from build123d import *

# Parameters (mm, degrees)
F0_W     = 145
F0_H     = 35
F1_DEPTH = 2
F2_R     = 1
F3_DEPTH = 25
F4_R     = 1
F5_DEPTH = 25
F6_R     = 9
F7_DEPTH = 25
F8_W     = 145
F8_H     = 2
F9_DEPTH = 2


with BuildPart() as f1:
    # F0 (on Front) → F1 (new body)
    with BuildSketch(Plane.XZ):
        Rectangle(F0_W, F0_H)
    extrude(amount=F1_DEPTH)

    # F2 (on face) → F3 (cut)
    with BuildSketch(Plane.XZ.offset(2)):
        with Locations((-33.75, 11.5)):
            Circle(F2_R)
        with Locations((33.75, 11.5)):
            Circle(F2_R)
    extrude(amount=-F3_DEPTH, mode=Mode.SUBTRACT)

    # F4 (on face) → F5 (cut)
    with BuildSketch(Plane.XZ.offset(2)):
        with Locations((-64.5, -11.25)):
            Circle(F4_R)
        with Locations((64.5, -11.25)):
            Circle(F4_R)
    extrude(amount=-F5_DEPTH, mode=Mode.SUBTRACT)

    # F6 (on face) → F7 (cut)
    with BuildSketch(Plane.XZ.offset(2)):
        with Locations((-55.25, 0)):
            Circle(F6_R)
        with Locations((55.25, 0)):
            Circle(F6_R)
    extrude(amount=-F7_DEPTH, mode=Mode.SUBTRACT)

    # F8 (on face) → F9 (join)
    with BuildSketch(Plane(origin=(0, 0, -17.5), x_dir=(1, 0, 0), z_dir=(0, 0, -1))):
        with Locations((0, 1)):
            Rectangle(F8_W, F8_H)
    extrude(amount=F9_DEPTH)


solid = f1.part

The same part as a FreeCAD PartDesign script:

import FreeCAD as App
import Part
import Sketcher

V = App.Vector
Q = App.Units.Quantity

doc = App.newDocument("Part")
body = doc.addObject("PartDesign::Body", "Body")

# Sketch on XZ plane
sketch1 = doc.addObject("Sketcher::SketchObject", "Sketch")
body.addObject(sketch1)
sketch1.AttachmentSupport = (doc.XZ_Plane, [""])
sketch1.MapMode = "FlatFace"
sketch1.addGeometry(Part.LineSegment(V(-72, 18, 0), V(-72, -18, 0)), False)
sketch1.addGeometry(Part.LineSegment(V(-72, -18, 0), V(72, -18, 0)), False)
sketch1.addGeometry(Part.LineSegment(V(72, -18, 0), V(72, 18, 0)), False)
sketch1.addGeometry(Part.LineSegment(V(72, 18, 0), V(-72, 18, 0)), False)
sketch1.addConstraint(Sketcher.Constraint("Coincident", 0, 2, 1, 1))
sketch1.addConstraint(Sketcher.Constraint("Coincident", 1, 2, 2, 1))
sketch1.addConstraint(Sketcher.Constraint("Coincident", 2, 2, 3, 1))
sketch1.addConstraint(Sketcher.Constraint("Coincident", 3, 2, 0, 1))
sketch1.addConstraint(Sketcher.Constraint("Vertical", 0))
sketch1.addConstraint(Sketcher.Constraint("Horizontal", 1))
sketch1.addConstraint(Sketcher.Constraint("Vertical", 2))
sketch1.addConstraint(Sketcher.Constraint("Horizontal", 3))
sketch1.addConstraint(Sketcher.Constraint("Symmetric", 0, 2, 2, 2, -1, 1))
sketch1.addConstraint(Sketcher.Constraint("DistanceX", 1, 1, 1, 2, Q("145 mm")))
sketch1.addConstraint(Sketcher.Constraint("DistanceY", 0, 2, 0, 1, Q("35 mm")))
pad1 = doc.addObject("PartDesign::Pad", "Pad")
body.addObject(pad1)
pad1.Profile = sketch1
pad1.Length = 2

# Sketch on XZ plane
sketch2 = doc.addObject("Sketcher::SketchObject", "Sketch001")
body.addObject(sketch2)
sketch2.AttachmentSupport = (doc.XZ_Plane, [""])
sketch2.MapMode = "FlatFace"
sketch2.AttachmentOffset = App.Placement(V(0, 0, 2), App.Rotation())
sketch2.addGeometry(Part.Circle(V(-33.8, 11.5, 0), V(0, 0, 1), 1), False)
sketch2.addGeometry(Part.Circle(V(33.8, 11.5, 0), V(0, 0, 1), 1), False)
sketch2.addConstraint(Sketcher.Constraint("Equal", 0, 1))
sketch2.addConstraint(Sketcher.Constraint("Symmetric", 0, 3, 1, 3, -2))
sketch2.addConstraint(Sketcher.Constraint("Diameter", 0, Q("2 mm")))
sketch2.addConstraint(Sketcher.Constraint("DistanceY", -1, 1, 0, 3, Q("11.5 mm")))
sketch2.addConstraint(Sketcher.Constraint("DistanceX", 0, 3, 1, 3, Q("67.5 mm")))
pocket1 = doc.addObject("PartDesign::Pocket", "Pocket")
body.addObject(pocket1)
pocket1.Profile = sketch2
pocket1.Length = 25

# Sketch on XZ plane
sketch3 = doc.addObject("Sketcher::SketchObject", "Sketch002")
body.addObject(sketch3)
sketch3.AttachmentSupport = (doc.XZ_Plane, [""])
sketch3.MapMode = "FlatFace"
sketch3.AttachmentOffset = App.Placement(V(0, 0, 2), App.Rotation())
sketch3.addGeometry(Part.Circle(V(-64.5, -11.2, 0), V(0, 0, 1), 1), False)
sketch3.addGeometry(Part.Circle(V(64.5, -11.2, 0), V(0, 0, 1), 1), False)
sketch3.addConstraint(Sketcher.Constraint("Equal", 0, 1))
sketch3.addConstraint(Sketcher.Constraint("Symmetric", 0, 3, 1, 3, -2))
sketch3.addConstraint(Sketcher.Constraint("Diameter", 0, Q("2 mm")))
sketch3.addConstraint(Sketcher.Constraint("DistanceX", 0, 3, 1, 3, Q("129 mm")))
sketch3.addConstraint(Sketcher.Constraint("DistanceY", 0, 3, -1, 1, Q("11.25 mm")))
pocket2 = doc.addObject("PartDesign::Pocket", "Pocket001")
body.addObject(pocket2)
pocket2.Profile = sketch3
pocket2.Length = 25

# Sketch on XZ plane
sketch4 = doc.addObject("Sketcher::SketchObject", "Sketch003")
body.addObject(sketch4)
sketch4.AttachmentSupport = (doc.XZ_Plane, [""])
sketch4.MapMode = "FlatFace"
sketch4.AttachmentOffset = App.Placement(V(0, 0, 2), App.Rotation())
sketch4.addGeometry(Part.Circle(V(-55, 0, 0), V(0, 0, 1), 9), False)
sketch4.addGeometry(Part.Circle(V(55, 0, 0), V(0, 0, 1), 9), False)
sketch4.addConstraint(Sketcher.Constraint("Equal", 0, 1))
sketch4.addConstraint(Sketcher.Constraint("Symmetric", 0, 3, 1, 3, -1, 1))
sketch4.addConstraint(Sketcher.Constraint("PointOnObject", 0, 3, -1))
sketch4.addConstraint(Sketcher.Constraint("Diameter", 0, Q("18 mm")))
sketch4.addConstraint(Sketcher.Constraint("DistanceX", 0, 3, 1, 3, Q("110.5 mm")))
pocket3 = doc.addObject("PartDesign::Pocket", "Pocket002")
body.addObject(pocket3)
pocket3.Profile = sketch4
pocket3.Length = 25

# Sketch on XY plane
sketch5 = doc.addObject("Sketcher::SketchObject", "Sketch004")
body.addObject(sketch5)
sketch5.AttachmentSupport = (doc.XY_Plane, [""])
sketch5.MapMode = "FlatFace"
sketch5.AttachmentOffset = App.Placement(V(0, 0, -17.5), App.Rotation())
sketch5.addGeometry(Part.LineSegment(V(-72.5, -2, 0), V(-72.5, 0, 0)), False)
sketch5.addGeometry(Part.LineSegment(V(-72.5, 0, 0), V(72.5, 0, 0)), False)
sketch5.addGeometry(Part.LineSegment(V(72.5, 0, 0), V(72.5, -2, 0)), False)
sketch5.addGeometry(Part.LineSegment(V(72.5, -2, 0), V(-72.5, -2, 0)), False)
sketch5.addConstraint(Sketcher.Constraint("Coincident", 0, 2, 1, 1))
sketch5.addConstraint(Sketcher.Constraint("Coincident", 1, 2, 2, 1))
sketch5.addConstraint(Sketcher.Constraint("Coincident", 2, 2, 3, 1))
sketch5.addConstraint(Sketcher.Constraint("Coincident", 3, 2, 0, 1))
sketch5.addConstraint(Sketcher.Constraint("Vertical", 0))
sketch5.addConstraint(Sketcher.Constraint("Horizontal", 1))
sketch5.addConstraint(Sketcher.Constraint("Vertical", 2))
sketch5.addConstraint(Sketcher.Constraint("Horizontal", 3))
sketch5.addConstraint(Sketcher.Constraint("Symmetric", 0, 2, 1, 2, -1, 1))
sketch5.addConstraint(Sketcher.Constraint("DistanceX", 1, 1, 1, 2, Q("145 mm")))
sketch5.addConstraint(Sketcher.Constraint("DistanceY", 0, 1, 0, 2, Q("2 mm")))
pad2 = doc.addObject("PartDesign::Pad", "Pad001")
body.addObject(pad2)
pad2.Profile = sketch5
pad2.Length = 2
pad2.Reversed = True

doc.recompute()
